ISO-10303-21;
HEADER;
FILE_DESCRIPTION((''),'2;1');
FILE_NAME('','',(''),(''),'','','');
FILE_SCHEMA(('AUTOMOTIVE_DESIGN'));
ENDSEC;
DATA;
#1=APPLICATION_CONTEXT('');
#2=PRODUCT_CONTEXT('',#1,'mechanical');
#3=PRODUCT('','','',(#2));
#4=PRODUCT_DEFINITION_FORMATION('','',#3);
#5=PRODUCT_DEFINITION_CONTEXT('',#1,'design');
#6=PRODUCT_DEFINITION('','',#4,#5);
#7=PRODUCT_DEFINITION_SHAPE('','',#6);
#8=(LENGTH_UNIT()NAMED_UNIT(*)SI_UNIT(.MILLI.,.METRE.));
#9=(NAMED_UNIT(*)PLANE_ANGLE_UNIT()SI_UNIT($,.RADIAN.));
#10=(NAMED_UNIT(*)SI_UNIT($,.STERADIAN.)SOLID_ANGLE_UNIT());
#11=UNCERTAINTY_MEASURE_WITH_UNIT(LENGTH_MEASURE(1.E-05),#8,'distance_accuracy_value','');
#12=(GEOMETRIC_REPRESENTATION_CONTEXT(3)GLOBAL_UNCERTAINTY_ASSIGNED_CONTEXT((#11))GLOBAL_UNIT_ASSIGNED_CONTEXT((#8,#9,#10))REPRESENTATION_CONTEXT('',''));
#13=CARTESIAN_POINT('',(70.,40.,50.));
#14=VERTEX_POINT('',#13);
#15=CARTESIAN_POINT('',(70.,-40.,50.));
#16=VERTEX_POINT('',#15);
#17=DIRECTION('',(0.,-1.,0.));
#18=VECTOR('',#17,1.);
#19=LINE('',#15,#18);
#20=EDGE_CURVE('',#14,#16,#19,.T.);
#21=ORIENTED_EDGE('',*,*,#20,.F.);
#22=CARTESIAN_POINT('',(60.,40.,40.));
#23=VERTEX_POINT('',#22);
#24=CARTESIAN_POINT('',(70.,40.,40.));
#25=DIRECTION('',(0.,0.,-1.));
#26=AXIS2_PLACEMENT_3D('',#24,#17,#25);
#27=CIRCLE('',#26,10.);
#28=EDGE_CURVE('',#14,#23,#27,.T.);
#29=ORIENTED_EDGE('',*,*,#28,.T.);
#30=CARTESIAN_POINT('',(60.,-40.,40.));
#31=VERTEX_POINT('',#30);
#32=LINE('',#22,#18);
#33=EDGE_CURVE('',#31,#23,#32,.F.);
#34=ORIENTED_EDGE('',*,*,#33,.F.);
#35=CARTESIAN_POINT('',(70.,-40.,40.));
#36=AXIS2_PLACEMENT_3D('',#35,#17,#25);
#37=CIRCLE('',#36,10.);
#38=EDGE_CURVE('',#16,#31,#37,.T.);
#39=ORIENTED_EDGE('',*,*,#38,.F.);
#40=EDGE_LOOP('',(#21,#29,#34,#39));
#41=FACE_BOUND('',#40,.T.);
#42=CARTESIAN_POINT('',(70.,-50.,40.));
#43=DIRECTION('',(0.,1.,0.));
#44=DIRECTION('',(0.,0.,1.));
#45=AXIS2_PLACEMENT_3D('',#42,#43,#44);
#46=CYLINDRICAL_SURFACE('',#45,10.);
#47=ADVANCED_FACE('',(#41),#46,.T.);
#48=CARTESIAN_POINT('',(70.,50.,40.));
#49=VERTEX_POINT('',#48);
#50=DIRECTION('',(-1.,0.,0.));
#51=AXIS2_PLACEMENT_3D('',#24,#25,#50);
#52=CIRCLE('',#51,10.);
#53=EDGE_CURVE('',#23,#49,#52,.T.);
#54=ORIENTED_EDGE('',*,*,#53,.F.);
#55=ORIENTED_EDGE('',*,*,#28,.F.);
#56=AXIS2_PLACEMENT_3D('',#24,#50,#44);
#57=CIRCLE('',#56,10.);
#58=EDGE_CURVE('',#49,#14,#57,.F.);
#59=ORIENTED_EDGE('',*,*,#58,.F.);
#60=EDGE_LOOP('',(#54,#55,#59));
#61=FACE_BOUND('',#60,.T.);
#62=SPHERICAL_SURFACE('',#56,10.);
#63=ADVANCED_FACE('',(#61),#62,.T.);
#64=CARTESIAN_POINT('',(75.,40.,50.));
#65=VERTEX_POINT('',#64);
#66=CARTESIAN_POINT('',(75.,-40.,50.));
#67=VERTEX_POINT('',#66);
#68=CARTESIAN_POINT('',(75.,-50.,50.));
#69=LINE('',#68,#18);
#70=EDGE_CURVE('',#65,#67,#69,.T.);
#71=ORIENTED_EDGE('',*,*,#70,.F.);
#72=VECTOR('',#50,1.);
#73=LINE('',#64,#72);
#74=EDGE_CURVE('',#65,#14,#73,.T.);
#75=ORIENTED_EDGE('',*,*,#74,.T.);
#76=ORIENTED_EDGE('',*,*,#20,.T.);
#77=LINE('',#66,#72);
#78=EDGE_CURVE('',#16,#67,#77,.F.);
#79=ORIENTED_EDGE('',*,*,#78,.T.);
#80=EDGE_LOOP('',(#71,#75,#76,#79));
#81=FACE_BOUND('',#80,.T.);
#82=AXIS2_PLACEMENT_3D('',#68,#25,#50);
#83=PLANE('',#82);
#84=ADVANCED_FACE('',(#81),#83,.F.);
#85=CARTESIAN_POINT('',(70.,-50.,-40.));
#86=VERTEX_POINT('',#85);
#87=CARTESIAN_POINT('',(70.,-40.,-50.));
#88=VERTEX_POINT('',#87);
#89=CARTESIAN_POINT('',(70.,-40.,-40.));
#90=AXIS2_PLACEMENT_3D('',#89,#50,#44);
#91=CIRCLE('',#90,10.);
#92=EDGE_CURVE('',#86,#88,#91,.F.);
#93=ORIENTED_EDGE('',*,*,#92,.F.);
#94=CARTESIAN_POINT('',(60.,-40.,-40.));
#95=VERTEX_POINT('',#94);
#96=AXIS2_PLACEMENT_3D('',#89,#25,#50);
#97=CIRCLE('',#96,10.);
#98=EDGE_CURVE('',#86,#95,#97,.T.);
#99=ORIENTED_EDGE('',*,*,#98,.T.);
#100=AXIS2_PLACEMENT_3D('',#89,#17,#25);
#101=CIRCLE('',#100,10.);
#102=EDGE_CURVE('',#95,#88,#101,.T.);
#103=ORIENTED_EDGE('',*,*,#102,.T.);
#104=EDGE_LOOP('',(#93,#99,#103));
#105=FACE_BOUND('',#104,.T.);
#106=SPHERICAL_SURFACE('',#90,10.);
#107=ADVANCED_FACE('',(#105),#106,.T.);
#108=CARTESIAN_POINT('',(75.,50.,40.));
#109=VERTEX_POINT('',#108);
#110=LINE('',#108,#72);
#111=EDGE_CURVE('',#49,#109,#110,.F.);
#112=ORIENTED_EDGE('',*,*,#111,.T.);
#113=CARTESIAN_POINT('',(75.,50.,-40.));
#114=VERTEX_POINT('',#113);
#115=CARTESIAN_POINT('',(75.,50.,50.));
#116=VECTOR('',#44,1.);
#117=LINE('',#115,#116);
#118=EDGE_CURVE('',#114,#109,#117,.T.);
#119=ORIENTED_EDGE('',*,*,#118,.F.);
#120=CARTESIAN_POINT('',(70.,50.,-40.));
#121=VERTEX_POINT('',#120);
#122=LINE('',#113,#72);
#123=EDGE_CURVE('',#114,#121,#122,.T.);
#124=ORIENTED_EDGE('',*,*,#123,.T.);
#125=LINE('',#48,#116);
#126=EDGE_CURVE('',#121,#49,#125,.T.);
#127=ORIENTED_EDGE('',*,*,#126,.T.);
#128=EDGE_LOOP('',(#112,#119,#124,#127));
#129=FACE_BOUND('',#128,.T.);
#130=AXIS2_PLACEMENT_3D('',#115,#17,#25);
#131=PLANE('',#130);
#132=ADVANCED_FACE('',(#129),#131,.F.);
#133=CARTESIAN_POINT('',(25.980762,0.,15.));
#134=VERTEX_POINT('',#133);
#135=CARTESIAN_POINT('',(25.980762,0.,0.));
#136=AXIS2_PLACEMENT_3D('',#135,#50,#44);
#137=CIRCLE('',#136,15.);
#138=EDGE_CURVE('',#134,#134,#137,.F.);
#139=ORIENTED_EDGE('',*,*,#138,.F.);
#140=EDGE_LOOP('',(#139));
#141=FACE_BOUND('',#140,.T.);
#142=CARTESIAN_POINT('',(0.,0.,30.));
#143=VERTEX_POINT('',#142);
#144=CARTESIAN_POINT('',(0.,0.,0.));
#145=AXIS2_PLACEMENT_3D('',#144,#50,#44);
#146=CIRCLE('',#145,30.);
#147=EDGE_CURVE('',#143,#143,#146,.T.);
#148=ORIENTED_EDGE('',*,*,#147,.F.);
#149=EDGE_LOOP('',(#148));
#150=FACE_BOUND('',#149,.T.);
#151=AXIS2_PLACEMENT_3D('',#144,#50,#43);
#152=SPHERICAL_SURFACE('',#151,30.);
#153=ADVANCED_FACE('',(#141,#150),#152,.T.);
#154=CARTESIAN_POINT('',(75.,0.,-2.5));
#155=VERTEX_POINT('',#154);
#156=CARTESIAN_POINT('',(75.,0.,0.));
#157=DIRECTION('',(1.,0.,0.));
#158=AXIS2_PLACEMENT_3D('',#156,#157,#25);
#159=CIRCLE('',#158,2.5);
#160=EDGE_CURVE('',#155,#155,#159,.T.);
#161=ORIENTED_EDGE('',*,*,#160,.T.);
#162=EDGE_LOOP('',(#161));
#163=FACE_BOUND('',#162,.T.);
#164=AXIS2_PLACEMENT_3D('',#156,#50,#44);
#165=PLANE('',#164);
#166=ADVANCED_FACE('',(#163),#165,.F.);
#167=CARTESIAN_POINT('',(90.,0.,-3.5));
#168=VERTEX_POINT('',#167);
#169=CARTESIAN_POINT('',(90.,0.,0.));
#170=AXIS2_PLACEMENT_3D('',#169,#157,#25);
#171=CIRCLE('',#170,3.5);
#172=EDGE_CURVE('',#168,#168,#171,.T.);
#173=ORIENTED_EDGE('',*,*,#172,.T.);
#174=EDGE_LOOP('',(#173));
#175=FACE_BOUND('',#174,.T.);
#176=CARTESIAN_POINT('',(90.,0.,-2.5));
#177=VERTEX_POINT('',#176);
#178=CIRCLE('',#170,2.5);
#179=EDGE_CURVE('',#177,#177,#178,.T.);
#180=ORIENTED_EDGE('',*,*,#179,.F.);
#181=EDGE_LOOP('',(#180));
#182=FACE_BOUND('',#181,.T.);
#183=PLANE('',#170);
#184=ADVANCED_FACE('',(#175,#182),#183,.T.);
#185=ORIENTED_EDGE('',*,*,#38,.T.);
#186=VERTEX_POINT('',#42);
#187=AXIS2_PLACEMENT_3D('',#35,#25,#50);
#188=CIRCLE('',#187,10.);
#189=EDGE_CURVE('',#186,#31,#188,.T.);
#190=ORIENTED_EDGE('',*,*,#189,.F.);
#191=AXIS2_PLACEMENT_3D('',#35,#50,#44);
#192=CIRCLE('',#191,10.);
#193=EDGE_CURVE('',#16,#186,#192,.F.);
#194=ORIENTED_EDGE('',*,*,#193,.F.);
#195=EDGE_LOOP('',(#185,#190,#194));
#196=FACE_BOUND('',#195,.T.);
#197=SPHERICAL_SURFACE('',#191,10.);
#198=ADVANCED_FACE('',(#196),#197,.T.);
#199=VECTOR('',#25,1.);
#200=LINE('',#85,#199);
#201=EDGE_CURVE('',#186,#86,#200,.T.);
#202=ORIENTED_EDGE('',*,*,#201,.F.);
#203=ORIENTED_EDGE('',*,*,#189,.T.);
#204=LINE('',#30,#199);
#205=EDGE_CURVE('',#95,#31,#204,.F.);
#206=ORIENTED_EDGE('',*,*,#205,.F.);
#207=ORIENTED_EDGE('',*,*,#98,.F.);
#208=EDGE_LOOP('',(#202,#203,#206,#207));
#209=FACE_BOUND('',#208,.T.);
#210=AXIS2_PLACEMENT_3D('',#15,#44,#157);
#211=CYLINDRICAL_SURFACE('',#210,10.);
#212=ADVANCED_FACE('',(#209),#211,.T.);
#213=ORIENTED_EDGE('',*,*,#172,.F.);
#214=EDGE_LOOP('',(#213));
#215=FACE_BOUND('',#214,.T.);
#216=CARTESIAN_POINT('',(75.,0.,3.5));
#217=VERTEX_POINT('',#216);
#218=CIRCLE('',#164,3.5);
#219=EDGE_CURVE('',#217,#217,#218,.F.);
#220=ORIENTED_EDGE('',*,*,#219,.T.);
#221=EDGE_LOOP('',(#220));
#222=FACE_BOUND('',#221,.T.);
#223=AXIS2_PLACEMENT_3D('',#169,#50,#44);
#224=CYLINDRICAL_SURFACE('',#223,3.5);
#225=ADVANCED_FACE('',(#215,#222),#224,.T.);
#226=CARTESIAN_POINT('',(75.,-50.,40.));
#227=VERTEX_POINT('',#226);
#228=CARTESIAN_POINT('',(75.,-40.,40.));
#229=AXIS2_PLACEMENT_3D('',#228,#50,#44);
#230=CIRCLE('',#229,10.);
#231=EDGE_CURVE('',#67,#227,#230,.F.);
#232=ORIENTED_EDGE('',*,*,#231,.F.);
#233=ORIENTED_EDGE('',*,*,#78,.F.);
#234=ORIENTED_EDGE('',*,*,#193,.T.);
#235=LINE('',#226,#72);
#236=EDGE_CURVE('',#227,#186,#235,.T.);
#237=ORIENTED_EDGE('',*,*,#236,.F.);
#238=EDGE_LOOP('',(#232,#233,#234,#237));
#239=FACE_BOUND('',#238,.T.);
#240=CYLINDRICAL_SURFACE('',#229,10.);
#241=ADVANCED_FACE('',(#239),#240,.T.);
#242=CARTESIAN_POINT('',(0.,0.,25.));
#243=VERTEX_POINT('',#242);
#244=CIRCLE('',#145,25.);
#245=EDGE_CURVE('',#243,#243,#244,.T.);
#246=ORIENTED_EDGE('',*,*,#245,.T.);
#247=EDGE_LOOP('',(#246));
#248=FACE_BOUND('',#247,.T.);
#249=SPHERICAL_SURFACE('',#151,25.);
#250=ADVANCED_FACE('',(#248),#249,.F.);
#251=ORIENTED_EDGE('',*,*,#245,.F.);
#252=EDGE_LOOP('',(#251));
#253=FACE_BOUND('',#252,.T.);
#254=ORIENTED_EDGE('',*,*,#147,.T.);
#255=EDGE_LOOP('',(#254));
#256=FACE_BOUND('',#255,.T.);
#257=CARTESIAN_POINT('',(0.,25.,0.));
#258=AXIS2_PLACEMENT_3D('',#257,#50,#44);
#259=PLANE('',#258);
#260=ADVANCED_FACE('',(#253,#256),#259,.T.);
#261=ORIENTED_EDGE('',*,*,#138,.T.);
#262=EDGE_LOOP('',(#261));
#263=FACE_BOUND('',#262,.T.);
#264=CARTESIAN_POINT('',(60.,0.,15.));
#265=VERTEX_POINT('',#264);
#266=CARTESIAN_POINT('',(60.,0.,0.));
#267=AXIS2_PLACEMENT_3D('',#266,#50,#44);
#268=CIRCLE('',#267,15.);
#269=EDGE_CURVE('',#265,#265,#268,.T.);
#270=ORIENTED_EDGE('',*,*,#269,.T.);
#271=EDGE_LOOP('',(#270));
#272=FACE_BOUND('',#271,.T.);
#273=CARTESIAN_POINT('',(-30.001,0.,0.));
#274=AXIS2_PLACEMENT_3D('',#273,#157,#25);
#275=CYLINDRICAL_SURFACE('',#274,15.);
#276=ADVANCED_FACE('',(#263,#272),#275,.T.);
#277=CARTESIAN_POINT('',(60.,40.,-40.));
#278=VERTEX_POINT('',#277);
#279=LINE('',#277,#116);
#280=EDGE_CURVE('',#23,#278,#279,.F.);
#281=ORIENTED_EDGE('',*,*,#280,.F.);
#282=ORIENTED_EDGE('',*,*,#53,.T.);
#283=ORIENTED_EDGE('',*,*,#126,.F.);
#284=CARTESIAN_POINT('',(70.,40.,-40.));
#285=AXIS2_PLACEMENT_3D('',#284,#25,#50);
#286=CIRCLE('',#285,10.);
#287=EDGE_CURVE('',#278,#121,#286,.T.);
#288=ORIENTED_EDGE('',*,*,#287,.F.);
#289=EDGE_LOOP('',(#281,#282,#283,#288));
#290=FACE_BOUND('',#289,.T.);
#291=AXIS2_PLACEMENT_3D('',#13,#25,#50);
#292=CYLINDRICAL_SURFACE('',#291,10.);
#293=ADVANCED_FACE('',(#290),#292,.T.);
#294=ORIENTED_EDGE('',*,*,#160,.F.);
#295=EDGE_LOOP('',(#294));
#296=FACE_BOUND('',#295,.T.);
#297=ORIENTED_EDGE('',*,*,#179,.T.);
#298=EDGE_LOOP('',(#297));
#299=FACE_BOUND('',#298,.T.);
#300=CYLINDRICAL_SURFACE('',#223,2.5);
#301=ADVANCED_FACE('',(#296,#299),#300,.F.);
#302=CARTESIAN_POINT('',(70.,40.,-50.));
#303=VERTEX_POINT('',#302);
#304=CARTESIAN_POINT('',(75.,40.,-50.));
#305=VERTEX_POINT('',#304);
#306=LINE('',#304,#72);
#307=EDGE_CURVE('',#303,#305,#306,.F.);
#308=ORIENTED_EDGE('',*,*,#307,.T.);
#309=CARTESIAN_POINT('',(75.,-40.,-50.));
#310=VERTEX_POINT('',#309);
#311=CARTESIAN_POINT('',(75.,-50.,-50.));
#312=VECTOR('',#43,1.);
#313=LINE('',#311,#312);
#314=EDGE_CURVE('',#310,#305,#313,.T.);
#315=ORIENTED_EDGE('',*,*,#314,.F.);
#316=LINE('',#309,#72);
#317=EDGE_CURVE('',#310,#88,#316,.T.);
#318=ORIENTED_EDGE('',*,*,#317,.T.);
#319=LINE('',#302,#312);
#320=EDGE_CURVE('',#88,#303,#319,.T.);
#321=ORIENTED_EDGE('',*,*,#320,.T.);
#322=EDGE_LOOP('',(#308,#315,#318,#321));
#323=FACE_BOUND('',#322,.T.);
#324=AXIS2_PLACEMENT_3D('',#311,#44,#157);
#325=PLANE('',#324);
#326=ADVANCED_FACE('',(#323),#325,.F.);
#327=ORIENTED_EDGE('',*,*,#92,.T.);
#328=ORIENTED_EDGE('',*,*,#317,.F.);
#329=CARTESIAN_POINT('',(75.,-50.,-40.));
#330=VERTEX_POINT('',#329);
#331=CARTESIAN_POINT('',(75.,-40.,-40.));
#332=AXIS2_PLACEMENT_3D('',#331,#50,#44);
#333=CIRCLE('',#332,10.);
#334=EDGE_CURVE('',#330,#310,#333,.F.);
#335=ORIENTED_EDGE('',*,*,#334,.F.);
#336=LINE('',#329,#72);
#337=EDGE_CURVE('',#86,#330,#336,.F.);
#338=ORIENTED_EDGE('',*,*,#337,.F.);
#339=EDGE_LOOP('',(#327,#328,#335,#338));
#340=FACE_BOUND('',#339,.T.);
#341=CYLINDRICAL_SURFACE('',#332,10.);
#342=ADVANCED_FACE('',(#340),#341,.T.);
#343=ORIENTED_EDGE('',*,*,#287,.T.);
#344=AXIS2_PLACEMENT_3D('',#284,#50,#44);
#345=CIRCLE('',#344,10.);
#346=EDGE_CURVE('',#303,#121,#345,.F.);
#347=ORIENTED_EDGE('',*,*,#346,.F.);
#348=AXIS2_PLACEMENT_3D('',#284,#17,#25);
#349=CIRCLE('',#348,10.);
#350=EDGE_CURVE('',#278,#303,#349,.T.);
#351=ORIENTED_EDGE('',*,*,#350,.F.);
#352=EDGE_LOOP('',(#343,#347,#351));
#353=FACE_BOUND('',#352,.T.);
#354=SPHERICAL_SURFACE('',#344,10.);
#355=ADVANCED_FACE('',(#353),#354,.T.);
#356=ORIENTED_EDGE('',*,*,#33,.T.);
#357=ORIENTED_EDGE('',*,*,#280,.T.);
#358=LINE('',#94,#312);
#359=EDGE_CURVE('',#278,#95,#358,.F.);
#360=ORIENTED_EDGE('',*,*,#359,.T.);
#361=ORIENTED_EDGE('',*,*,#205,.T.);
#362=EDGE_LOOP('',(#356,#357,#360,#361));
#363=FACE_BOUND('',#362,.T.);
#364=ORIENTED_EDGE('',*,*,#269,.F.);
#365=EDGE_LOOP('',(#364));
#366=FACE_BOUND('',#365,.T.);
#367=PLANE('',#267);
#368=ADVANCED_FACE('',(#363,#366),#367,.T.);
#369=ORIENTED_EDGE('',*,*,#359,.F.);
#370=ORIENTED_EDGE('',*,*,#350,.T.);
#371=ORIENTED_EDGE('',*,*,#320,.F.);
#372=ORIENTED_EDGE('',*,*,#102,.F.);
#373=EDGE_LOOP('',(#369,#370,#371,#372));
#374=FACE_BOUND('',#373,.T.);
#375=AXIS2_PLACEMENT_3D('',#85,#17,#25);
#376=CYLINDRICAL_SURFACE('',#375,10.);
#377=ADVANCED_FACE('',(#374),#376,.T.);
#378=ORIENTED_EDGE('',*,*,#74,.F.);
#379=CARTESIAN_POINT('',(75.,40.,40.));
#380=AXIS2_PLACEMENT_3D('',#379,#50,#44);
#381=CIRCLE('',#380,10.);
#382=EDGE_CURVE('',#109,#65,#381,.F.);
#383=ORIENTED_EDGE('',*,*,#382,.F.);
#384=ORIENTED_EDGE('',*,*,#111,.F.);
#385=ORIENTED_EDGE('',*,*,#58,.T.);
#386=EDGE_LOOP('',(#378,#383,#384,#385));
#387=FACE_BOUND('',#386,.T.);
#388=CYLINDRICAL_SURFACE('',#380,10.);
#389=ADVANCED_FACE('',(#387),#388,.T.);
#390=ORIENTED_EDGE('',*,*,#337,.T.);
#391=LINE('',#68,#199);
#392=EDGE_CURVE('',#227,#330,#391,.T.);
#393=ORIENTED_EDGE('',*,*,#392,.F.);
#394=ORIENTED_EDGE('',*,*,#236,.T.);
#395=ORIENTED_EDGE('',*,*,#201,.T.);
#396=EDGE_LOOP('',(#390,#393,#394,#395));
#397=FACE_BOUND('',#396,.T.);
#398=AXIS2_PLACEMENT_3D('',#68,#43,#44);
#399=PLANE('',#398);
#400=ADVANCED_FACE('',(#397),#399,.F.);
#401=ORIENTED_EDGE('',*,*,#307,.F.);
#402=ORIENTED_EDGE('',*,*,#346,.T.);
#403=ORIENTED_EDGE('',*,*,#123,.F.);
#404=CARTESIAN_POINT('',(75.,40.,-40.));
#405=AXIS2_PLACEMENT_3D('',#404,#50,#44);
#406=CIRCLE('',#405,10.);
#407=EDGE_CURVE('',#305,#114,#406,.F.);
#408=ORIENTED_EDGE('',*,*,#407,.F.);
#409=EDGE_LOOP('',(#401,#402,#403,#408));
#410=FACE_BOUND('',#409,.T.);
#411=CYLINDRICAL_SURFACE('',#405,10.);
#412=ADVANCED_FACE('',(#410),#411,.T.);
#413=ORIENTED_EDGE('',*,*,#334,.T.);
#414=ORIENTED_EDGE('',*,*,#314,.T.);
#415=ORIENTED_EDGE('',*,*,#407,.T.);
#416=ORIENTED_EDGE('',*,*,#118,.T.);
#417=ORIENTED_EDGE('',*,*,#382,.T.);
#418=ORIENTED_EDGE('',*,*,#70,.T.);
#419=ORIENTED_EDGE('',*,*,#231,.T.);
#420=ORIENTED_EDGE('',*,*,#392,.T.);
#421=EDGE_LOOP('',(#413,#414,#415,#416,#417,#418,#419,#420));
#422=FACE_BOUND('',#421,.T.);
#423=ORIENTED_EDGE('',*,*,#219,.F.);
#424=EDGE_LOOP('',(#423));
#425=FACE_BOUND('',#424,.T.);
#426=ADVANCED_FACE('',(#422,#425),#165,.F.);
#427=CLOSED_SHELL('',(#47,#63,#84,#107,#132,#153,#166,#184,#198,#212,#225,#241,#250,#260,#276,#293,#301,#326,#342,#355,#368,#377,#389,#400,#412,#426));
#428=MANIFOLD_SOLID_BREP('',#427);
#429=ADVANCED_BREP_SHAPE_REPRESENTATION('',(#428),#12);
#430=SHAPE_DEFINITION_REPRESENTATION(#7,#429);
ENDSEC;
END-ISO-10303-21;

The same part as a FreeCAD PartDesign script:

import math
import FreeCAD as App
import Part
import Sketcher
Q = App.Units.Quantity


def edges_at(feature, points):
    """Names of the edges that pass closest to the given points."""
    edges = feature.Shape.Edges
    near = lambda p: min(range(len(edges)), key=lambda i: edges[i].distToShape(Part.Vertex(*p))[0])
    return sorted({f"Edge{near(p) + 1}" for p in points})

doc = App.newDocument("Part")
body = doc.addObject("PartDesign::Body", "Body")
body.AllowCompound = True

sketch1 = doc.addObject("Sketcher::SketchObject", "Sketch")
body.addObject(sketch1)
sketch1.AttachmentSupport = (doc.XY_Plane, [""])
sketch1.MapMode = "FlatFace"
sketch1.addGeometry([
    Part.ArcOfCircle(Part.Circle(App.Vector(0, 0, 0), App.Vector(0, 0, 1), 25), math.radians(0), math.radians(90)),
    Part.LineSegment(App.Vector(25, 0, 0), App.Vector(30, 0, 0)),
    Part.ArcOfCircle(Part.Circle(App.Vector(0, 0, 0), App.Vector(0, 0, 1), 30), math.radians(0), math.radians(90)),
    Part.LineSegment(App.Vector(0, 30, 0), App.Vector(0, 25, 0)),
], False)
sketch1.addConstraint([
    Sketcher.Constraint("Coincident", 0, 1, 1, 1),
    Sketcher.Constraint("Coincident", 1, 2, 2, 1),
    Sketcher.Constraint("Coincident", 2, 2, 3, 1),
    Sketcher.Constraint("Coincident", 3, 2, 0, 2),
    Sketcher.Constraint("Horizontal", 1),
    Sketcher.Constraint("Vertical", 3),
    Sketcher.Constraint("Coincident", 0, 3, -1, 1),
    Sketcher.Constraint("Coincident", 2, 3, -1, 1),
    Sketcher.Constraint("PointOnObject", 0, 1, -1),
    Sketcher.Constraint("PointOnObject", 2, 2, -2),
    Sketcher.Constraint("Radius", 0, Q("25 mm")),
    Sketcher.Constraint("Radius", 2, Q("30 mm")),
])
revolution = doc.addObject("PartDesign::Revolution", "Revolution")
body.addObject(revolution)
revolution.Profile = sketch1
revolution.ReferenceAxis = (sketch1, ["H_Axis"])
revolution.Angle = 360

sketch2 = doc.addObject("Sketcher::SketchObject", "Sketch001")
body.addObject(sketch2)
sketch2.AttachmentSupport = (doc.YZ_Plane, [""])
sketch2.MapMode = "FlatFace"
sketch2.AttachmentOffset = App.Placement(App.Vector(0, 0, 40), App.Rotation())
sketch2.addGeometry(Part.Circle(App.Vector(0, 0, 0), App.Vector(0, 0, 1), 15), False)
sketch2.addConstraint([
    Sketcher.Constraint("Coincident", 0, 3, -1, 1),
    Sketcher.Constraint("Diameter", 0, Q("30 mm")),
])
pad1 = doc.addObject("PartDesign::Pad", "Pad")
body.addObject(pad1)
pad1.Profile = sketch2
pad1.Length = 20

sketch3 = doc.addObject("Sketcher::SketchObject", "Sketch002")
body.addObject(sketch3)
sketch3.AttachmentSupport = (doc.YZ_Plane, [""])
sketch3.MapMode = "FlatFace"
sketch3.AttachmentOffset = App.Placement(App.Vector(0, 0, 40), App.Rotation())
sketch3.addGeometry(Part.Circle(App.Vector(0, 0, 0), App.Vector(0, 0, 1), 15), False)
sketch3.addConstraint([
    Sketcher.Constraint("Coincident", 0, 3, -1, 1),
    Sketcher.Constraint("Diameter", 0, Q("30 mm")),
])
pad2 = doc.addObject("PartDesign::Pad", "Pad001")
body.addObject(pad2)
pad2.Profile = sketch3
pad2.Type = "UpToFirst"
pad2.Reversed = True

sketch4 = doc.addObject("Sketcher::SketchObject", "Sketch003")
body.addObject(sketch4)
sketch4.AttachmentSupport = (doc.YZ_Plane, [""])
sketch4.MapMode = "FlatFace"
sketch4.AttachmentOffset = App.Placement(App.Vector(0, 0, 60), App.Rotation())
sketch4.addGeometry([
    Part.LineSegment(App.Vector(50, 50, 0), App.Vector(-50, 50, 0)),
    Part.LineSegment(App.Vector(-50, 50, 0), App.Vector(-50, -50, 0)),
    Part.LineSegment(App.Vector(-50, -50, 0), App.Vector(50, -50, 0)),
    Part.LineSegment(App.Vector(50, -50, 0), App.Vector(50, 50, 0)),
], False)
sketch4.addConstraint([
    Sketcher.Constraint("Coincident", 0, 2, 1, 1),
    Sketcher.Constraint("Coincident", 1, 2, 2, 1),
    Sketcher.Constraint("Coincident", 2, 2, 3, 1),
    Sketcher.Constraint("Coincident", 3, 2, 0, 1),
    Sketcher.Constraint("Horizontal", 0),
    Sketcher.Constraint("Vertical", 1),
    Sketcher.Constraint("Horizontal", 2),
    Sketcher.Constraint("Vertical", 3),
    Sketcher.Constraint("Symmetric", 0, 2, 2, 2, -1, 1),
    Sketcher.Constraint("Equal", 2, 1),
    Sketcher.Constraint("DistanceX", 0, 2, 0, 1, Q("100 mm")),
])
pad3 = doc.addObject("PartDesign::Pad", "Pad002")
body.addObject(pad3)
pad3.Profile = sketch4
pad3.Length = 15
doc.recompute()

fillet = doc.addObject("PartDesign::Fillet", "Fillet")
body.addObject(fillet)
fillet.Base = (pad3, edges_at(pad3, [
    (67.5, -50, -50),
    (67.5, 50, -50),
    (67.5, 50, 50),
    (67.5, -50, 50),
]))
fillet.Radius = 10
doc.recompute()

fillet2 = doc.addObject("PartDesign::Fillet", "Fillet001")
body.addObject(fillet2)
fillet2.Base = (fillet, edges_at(fillet, [
    (60, 0, -50),
    (60, -50, 0),
    (60, 0, 50),
    (60, 50, 0),
    (60, 47.071, -47.071),
    (60, 47.071, 47.071),
    (60, -47.071, 47.071),
    (60, -47.071, -47.071),
]))
fillet2.Radius = 10

sketch5 = doc.addObject("Sketcher::SketchObject", "Sketch004")
body.addObject(sketch5)
sketch5.AttachmentSupport = (doc.YZ_Plane, [""])
sketch5.MapMode = "FlatFace"
sketch5.AttachmentOffset = App.Placement(App.Vector(0, 0, 75), App.Rotation())
sketch5.addGeometry([
    Part.Circle(App.Vector(0, 0, 0), App.Vector(0, 0, 1), 3.5),
    Part.Circle(App.Vector(0, 0, 0), App.Vector(0, 0, 1), 2.5),
], False)
sketch5.addConstraint([
    Sketcher.Constraint("Coincident", 0, 3, -1, 1),
    Sketcher.Constraint("Coincident", 1, 3, -1, 1),
    Sketcher.Constraint("Diameter", 0, Q("7 mm")),
    Sketcher.Constraint("Diameter", 1, Q("5 mm")),
])
pad4 = doc.addObject("PartDesign::Pad", "Pad003")
body.addObject(pad4)
pad4.Profile = sketch5
pad4.Length = 15

doc.recompute()
